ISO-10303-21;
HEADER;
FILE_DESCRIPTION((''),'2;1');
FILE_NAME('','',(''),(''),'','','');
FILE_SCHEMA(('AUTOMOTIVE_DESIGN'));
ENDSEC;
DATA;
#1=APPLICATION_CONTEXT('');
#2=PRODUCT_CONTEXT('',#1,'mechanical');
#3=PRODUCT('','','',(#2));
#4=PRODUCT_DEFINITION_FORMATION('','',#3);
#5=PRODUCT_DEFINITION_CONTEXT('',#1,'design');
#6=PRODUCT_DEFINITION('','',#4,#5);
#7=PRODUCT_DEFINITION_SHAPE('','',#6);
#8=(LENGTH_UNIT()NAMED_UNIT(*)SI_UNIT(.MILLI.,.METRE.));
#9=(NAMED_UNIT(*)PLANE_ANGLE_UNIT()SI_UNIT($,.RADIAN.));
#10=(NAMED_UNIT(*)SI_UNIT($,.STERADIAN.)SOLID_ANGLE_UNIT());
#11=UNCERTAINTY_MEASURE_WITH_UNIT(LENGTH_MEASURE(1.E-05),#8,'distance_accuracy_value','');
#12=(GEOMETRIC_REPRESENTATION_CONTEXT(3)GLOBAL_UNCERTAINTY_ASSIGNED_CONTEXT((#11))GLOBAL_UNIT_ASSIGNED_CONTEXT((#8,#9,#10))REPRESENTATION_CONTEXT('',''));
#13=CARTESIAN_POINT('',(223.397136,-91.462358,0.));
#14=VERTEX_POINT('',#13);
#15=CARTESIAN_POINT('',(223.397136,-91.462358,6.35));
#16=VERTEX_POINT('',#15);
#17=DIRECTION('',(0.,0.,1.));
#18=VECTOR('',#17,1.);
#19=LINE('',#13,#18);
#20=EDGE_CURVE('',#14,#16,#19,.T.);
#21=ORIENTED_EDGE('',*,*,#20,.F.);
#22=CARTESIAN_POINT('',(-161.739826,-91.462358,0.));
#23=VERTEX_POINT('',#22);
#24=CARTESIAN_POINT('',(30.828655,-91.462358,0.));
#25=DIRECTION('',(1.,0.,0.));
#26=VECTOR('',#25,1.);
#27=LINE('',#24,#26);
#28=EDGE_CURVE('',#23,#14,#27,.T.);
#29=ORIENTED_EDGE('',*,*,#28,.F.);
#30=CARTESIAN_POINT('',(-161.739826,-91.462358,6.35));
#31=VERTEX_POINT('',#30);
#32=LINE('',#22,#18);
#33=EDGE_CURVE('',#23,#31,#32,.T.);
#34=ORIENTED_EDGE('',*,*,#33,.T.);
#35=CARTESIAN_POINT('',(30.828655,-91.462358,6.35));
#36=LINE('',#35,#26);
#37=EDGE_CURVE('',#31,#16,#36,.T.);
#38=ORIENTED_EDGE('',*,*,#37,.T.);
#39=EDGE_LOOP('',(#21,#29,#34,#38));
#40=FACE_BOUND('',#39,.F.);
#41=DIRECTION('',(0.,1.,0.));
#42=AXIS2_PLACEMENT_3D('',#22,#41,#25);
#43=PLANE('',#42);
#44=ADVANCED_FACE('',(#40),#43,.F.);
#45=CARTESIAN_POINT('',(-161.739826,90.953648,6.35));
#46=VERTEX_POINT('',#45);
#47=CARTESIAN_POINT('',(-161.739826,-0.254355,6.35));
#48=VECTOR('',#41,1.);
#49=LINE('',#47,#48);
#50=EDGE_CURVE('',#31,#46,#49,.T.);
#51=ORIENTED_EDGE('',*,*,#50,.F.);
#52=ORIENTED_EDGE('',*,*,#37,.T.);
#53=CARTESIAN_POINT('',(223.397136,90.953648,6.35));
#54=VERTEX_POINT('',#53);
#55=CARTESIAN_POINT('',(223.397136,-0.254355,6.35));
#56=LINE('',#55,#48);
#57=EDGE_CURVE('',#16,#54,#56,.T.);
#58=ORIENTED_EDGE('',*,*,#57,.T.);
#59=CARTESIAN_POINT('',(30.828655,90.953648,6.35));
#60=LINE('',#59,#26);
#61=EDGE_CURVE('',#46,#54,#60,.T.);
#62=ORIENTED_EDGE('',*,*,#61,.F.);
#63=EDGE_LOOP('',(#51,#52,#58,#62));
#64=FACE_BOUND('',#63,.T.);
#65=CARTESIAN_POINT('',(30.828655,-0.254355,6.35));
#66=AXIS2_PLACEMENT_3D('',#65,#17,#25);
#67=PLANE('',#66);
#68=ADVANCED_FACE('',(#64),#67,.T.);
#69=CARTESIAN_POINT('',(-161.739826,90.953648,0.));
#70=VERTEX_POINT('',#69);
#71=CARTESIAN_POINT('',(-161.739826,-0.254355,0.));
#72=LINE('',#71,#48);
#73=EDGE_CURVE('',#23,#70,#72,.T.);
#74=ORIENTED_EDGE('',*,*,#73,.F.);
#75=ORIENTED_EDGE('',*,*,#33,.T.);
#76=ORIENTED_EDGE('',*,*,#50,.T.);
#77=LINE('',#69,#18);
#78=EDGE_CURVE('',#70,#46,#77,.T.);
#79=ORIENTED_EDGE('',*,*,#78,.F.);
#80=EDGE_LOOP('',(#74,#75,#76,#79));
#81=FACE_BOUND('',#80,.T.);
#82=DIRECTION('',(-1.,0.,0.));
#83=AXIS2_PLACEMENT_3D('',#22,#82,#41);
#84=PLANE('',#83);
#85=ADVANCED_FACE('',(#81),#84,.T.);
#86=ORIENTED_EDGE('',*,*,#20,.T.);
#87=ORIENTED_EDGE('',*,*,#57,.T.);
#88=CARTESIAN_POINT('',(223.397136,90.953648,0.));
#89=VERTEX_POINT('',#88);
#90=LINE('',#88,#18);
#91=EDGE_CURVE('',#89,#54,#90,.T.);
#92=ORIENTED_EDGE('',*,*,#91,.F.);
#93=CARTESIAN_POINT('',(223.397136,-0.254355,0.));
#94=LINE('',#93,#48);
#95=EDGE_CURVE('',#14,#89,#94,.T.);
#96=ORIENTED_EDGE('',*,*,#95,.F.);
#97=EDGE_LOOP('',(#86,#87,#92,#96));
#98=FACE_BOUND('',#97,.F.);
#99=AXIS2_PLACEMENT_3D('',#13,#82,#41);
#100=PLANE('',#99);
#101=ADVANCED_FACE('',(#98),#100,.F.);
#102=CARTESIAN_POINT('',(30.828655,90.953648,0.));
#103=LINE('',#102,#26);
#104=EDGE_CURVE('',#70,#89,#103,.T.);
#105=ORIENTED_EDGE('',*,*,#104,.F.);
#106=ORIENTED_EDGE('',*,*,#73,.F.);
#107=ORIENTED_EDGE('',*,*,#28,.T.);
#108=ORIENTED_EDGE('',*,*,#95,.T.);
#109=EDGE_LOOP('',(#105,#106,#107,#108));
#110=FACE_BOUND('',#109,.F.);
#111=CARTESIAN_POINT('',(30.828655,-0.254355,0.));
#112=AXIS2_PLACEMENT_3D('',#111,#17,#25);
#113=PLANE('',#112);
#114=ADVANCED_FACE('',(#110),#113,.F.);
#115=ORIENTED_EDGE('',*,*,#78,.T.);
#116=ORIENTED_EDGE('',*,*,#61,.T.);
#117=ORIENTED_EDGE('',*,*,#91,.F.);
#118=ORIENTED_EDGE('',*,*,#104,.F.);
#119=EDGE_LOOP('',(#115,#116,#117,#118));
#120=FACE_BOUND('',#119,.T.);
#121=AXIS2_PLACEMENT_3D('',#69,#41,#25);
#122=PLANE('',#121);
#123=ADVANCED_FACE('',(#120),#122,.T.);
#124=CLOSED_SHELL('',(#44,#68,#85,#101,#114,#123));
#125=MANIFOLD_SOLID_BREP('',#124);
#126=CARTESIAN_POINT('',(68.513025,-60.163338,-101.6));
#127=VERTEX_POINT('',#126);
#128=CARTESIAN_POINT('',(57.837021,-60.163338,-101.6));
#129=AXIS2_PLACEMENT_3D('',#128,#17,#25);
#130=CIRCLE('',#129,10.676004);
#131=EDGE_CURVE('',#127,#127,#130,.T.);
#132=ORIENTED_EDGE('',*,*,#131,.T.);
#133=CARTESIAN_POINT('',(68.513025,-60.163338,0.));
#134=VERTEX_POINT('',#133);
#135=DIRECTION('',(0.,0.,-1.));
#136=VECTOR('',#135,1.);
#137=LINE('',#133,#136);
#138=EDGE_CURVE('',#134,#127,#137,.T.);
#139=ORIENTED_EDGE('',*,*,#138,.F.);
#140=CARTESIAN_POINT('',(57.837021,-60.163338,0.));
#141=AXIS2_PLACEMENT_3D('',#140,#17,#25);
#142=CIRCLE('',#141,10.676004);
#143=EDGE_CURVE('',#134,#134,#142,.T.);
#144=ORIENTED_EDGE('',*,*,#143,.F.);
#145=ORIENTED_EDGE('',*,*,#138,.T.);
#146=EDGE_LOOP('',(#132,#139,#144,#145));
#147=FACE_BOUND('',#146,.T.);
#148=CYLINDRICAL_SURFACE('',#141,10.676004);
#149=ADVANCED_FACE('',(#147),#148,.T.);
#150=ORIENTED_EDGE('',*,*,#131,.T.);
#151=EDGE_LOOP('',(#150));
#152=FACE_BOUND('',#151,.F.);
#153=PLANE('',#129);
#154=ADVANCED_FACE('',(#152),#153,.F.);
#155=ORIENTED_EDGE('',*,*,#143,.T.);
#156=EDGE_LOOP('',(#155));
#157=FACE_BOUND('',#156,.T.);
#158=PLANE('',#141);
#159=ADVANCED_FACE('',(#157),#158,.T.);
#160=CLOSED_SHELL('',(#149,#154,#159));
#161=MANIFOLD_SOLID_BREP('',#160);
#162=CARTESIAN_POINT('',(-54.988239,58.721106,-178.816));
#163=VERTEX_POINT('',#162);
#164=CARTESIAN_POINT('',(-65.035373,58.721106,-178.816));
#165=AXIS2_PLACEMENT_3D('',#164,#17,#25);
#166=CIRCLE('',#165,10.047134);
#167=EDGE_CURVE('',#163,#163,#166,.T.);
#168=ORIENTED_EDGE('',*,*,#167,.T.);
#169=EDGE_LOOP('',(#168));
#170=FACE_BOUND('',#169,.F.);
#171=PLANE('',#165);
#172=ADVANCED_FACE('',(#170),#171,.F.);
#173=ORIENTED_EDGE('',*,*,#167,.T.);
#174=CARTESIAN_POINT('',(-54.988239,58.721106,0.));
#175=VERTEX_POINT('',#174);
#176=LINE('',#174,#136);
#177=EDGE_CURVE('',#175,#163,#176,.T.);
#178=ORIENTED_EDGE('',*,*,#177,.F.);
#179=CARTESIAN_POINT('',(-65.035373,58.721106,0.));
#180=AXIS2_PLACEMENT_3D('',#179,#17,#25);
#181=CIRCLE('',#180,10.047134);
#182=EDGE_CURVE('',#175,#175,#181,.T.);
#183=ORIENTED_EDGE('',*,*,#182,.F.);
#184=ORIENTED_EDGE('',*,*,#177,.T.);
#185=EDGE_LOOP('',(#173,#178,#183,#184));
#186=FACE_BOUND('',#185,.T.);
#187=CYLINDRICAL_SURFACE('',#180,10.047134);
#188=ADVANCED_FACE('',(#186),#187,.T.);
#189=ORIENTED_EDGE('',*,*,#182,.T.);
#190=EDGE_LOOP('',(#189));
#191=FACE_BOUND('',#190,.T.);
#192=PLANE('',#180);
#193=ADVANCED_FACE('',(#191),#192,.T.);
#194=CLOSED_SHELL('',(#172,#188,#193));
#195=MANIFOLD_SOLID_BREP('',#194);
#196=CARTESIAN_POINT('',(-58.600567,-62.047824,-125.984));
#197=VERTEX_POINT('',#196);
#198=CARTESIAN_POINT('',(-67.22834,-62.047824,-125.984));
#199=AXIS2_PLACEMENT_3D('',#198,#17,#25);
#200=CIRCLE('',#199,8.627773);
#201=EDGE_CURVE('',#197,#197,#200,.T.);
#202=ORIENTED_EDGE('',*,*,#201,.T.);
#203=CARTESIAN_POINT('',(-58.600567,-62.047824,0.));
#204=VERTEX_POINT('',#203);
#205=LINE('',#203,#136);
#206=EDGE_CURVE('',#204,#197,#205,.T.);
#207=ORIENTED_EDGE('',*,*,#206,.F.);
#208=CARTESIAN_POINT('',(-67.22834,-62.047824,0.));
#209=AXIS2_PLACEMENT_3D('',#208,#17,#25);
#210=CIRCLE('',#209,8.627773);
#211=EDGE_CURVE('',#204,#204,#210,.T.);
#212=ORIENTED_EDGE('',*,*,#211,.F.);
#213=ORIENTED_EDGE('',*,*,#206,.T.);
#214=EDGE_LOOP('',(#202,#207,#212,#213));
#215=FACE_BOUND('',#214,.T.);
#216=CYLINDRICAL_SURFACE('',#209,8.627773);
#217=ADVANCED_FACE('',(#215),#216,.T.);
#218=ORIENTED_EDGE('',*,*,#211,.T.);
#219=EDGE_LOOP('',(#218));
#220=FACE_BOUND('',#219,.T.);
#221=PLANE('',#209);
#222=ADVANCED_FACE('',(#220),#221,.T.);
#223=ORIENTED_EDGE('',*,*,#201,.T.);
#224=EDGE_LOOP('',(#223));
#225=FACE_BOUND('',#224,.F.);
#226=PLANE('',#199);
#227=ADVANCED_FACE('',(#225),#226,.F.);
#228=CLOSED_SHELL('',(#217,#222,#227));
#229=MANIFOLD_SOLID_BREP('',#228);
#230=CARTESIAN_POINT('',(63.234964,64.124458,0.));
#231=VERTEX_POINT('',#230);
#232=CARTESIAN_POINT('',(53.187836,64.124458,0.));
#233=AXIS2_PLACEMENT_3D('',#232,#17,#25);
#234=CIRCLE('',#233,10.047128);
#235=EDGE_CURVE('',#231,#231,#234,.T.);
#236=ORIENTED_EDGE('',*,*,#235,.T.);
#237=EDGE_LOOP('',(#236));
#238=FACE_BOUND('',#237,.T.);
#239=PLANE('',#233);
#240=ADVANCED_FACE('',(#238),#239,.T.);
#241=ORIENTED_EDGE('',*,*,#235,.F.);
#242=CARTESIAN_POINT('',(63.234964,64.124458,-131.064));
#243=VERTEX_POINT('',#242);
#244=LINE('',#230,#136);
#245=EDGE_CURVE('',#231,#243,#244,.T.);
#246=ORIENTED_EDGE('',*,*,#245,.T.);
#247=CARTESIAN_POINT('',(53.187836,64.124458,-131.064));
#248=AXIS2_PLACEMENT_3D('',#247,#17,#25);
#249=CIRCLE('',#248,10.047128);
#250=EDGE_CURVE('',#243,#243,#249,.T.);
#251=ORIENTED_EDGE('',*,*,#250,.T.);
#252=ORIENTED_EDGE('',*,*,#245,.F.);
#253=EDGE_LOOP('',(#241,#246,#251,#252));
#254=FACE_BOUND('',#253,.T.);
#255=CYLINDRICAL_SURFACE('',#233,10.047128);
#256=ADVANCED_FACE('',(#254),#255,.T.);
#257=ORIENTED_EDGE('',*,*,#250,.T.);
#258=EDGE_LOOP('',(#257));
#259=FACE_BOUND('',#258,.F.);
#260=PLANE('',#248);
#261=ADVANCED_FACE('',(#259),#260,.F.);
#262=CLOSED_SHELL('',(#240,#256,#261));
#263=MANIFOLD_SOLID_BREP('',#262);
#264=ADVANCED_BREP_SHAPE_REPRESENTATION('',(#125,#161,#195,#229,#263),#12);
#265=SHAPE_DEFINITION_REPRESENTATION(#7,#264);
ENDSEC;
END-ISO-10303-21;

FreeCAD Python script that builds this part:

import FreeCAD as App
import Part
import Sketcher

V = App.Vector
Q = App.Units.Quantity


def add_polygon(sketch, points):
    """Adds a closed chain of lines whose ends are joined by coincident constraints."""
    first, n = sketch.GeometryCount, len(points)
    for a, b in zip(points, points[1:] + points[:1]):
        sketch.addGeometry(Part.LineSegment(App.Vector(*a, 0), App.Vector(*b, 0)), False)
    for i in range(n):
        sketch.addConstraint(Sketcher.Constraint("Coincident", first + i, 2, first + (i + 1) % n, 1))

doc = App.newDocument("Part")
body = doc.addObject("PartDesign::Body", "Body")

sketch1 = body.newObject("Sketcher::SketchObject", "Sketch")
sketch1.AttachmentSupport = (doc.getObject("XY_Plane"), [""])
sketch1.MapMode = "FlatFace"
sketch1.addGeometry(Part.Circle(V(-65.035373, 58.721106, 0), V(0, 0, 1), 10.047134), False)
sketch1.addConstraint(Sketcher.Constraint("Diameter", 0, 20.094268))
sketch1.addConstraint(Sketcher.Constraint("DistanceX", 0, 3, -1, 1, 65.035373))
sketch1.addConstraint(Sketcher.Constraint("DistanceY", -1, 1, 0, 3, 58.721106))
pad1 = body.newObject("PartDesign::Pad", "Pad")
pad1.Profile = sketch1
pad1.Length = Q("7.04 in")
pad1.Reversed = True
body2 = doc.addObject("PartDesign::Body", "Body001")

sketch2 = body2.newObject("Sketcher::SketchObject", "Sketch001")
sketch2.AttachmentSupport = (doc.getObject("XY_Plane001"), [""])
sketch2.MapMode = "FlatFace"
sketch2.addGeometry(Part.Circle(V(53.187836, 64.124458, 0), V(0, 0, 1), 10.047128), False)
sketch2.addConstraint(Sketcher.Constraint("Diameter", 0, 20.094256))
sketch2.addConstraint(Sketcher.Constraint("DistanceY", -1, 1, 0, 3, 64.124458))
sketch2.addConstraint(Sketcher.Constraint("DistanceX", -1, 1, 0, 3, 53.187836))
pad2 = body2.newObject("PartDesign::Pad", "Pad001")
pad2.Profile = sketch2
pad2.Length = Q("5.16 in")
pad2.Reversed = True
body3 = doc.addObject("PartDesign::Body", "Body002")

sketch3 = body3.newObject("Sketcher::SketchObject", "Sketch002")
sketch3.AttachmentSupport = (doc.getObject("XY_Plane002"), [""])
sketch3.MapMode = "FlatFace"
sketch3.addGeometry(Part.Circle(V(-67.22834, -62.047824, 0), V(0, 0, 1), 8.627773), False)
sketch3.addConstraint(Sketcher.Constraint("Diameter", 0, 17.255546))
sketch3.addConstraint(Sketcher.Constraint("DistanceX", 0, 3, -1, 1, 67.22834))
sketch3.addConstraint(Sketcher.Constraint("DistanceY", 0, 3, -1, 1, 62.047824))
pad3 = body3.newObject("PartDesign::Pad", "Pad002")
pad3.Profile = sketch3
pad3.Length = Q("4.96 in")
pad3.Reversed = True
body4 = doc.addObject("PartDesign::Body", "Body003")

sketch4 = body4.newObject("Sketcher::SketchObject", "Sketch003")
sketch4.AttachmentSupport = (doc.getObject("XY_Plane003"), [""])
sketch4.MapMode = "FlatFace"
sketch4.addGeometry(Part.Circle(V(57.837021, -60.163338, 0), V(0, 0, 1), 10.676004), False)
sketch4.addConstraint(Sketcher.Constraint("Diameter", 0, 21.352008))
sketch4.addConstraint(Sketcher.Constraint("DistanceX", -1, 1, 0, 3, 57.837021))
sketch4.addConstraint(Sketcher.Constraint("DistanceY", 0, 3, -1, 1, 60.163338))
pad4 = body4.newObject("PartDesign::Pad", "Pad003")
pad4.Profile = sketch4
pad4.Length = Q("4 in")
pad4.Reversed = True
body5 = doc.addObject("PartDesign::Body", "Body004")

sketch5 = body5.newObject("Sketcher::SketchObject", "Sketch004")
sketch5.AttachmentSupport = (doc.getObject("XY_Plane004"), [""])
sketch5.MapMode = "FlatFace"
add_polygon(sketch5, [(-161.739826, 90.953648), (-161.739826, -91.462358), (223.397136, -91.462358), (223.397136, 90.953648)])
sketch5.addConstraint(Sketcher.Constraint("Vertical", 0))
sketch5.addConstraint(Sketcher.Constraint("Horizontal", 1))
sketch5.addConstraint(Sketcher.Constraint("Vertical", 2))
sketch5.addConstraint(Sketcher.Constraint("Horizontal", 3))
sketch5.addConstraint(Sketcher.Constraint("DistanceX", 1, 1, 1, 2, 385.136962))
sketch5.addConstraint(Sketcher.Constraint("DistanceY", 0, 2, 0, 1, 182.416007))
sketch5.addConstraint(Sketcher.Constraint("DistanceY", 0, 2, -1, 1, 91.462358))
sketch5.addConstraint(Sketcher.Constraint("DistanceX", 0, 2, -1, 1, 161.739826))
pad5 = body5.newObject("PartDesign::Pad", "Pad004")
pad5.Profile = sketch5
pad5.Length = Q("0.25 in")

doc.recompute()
